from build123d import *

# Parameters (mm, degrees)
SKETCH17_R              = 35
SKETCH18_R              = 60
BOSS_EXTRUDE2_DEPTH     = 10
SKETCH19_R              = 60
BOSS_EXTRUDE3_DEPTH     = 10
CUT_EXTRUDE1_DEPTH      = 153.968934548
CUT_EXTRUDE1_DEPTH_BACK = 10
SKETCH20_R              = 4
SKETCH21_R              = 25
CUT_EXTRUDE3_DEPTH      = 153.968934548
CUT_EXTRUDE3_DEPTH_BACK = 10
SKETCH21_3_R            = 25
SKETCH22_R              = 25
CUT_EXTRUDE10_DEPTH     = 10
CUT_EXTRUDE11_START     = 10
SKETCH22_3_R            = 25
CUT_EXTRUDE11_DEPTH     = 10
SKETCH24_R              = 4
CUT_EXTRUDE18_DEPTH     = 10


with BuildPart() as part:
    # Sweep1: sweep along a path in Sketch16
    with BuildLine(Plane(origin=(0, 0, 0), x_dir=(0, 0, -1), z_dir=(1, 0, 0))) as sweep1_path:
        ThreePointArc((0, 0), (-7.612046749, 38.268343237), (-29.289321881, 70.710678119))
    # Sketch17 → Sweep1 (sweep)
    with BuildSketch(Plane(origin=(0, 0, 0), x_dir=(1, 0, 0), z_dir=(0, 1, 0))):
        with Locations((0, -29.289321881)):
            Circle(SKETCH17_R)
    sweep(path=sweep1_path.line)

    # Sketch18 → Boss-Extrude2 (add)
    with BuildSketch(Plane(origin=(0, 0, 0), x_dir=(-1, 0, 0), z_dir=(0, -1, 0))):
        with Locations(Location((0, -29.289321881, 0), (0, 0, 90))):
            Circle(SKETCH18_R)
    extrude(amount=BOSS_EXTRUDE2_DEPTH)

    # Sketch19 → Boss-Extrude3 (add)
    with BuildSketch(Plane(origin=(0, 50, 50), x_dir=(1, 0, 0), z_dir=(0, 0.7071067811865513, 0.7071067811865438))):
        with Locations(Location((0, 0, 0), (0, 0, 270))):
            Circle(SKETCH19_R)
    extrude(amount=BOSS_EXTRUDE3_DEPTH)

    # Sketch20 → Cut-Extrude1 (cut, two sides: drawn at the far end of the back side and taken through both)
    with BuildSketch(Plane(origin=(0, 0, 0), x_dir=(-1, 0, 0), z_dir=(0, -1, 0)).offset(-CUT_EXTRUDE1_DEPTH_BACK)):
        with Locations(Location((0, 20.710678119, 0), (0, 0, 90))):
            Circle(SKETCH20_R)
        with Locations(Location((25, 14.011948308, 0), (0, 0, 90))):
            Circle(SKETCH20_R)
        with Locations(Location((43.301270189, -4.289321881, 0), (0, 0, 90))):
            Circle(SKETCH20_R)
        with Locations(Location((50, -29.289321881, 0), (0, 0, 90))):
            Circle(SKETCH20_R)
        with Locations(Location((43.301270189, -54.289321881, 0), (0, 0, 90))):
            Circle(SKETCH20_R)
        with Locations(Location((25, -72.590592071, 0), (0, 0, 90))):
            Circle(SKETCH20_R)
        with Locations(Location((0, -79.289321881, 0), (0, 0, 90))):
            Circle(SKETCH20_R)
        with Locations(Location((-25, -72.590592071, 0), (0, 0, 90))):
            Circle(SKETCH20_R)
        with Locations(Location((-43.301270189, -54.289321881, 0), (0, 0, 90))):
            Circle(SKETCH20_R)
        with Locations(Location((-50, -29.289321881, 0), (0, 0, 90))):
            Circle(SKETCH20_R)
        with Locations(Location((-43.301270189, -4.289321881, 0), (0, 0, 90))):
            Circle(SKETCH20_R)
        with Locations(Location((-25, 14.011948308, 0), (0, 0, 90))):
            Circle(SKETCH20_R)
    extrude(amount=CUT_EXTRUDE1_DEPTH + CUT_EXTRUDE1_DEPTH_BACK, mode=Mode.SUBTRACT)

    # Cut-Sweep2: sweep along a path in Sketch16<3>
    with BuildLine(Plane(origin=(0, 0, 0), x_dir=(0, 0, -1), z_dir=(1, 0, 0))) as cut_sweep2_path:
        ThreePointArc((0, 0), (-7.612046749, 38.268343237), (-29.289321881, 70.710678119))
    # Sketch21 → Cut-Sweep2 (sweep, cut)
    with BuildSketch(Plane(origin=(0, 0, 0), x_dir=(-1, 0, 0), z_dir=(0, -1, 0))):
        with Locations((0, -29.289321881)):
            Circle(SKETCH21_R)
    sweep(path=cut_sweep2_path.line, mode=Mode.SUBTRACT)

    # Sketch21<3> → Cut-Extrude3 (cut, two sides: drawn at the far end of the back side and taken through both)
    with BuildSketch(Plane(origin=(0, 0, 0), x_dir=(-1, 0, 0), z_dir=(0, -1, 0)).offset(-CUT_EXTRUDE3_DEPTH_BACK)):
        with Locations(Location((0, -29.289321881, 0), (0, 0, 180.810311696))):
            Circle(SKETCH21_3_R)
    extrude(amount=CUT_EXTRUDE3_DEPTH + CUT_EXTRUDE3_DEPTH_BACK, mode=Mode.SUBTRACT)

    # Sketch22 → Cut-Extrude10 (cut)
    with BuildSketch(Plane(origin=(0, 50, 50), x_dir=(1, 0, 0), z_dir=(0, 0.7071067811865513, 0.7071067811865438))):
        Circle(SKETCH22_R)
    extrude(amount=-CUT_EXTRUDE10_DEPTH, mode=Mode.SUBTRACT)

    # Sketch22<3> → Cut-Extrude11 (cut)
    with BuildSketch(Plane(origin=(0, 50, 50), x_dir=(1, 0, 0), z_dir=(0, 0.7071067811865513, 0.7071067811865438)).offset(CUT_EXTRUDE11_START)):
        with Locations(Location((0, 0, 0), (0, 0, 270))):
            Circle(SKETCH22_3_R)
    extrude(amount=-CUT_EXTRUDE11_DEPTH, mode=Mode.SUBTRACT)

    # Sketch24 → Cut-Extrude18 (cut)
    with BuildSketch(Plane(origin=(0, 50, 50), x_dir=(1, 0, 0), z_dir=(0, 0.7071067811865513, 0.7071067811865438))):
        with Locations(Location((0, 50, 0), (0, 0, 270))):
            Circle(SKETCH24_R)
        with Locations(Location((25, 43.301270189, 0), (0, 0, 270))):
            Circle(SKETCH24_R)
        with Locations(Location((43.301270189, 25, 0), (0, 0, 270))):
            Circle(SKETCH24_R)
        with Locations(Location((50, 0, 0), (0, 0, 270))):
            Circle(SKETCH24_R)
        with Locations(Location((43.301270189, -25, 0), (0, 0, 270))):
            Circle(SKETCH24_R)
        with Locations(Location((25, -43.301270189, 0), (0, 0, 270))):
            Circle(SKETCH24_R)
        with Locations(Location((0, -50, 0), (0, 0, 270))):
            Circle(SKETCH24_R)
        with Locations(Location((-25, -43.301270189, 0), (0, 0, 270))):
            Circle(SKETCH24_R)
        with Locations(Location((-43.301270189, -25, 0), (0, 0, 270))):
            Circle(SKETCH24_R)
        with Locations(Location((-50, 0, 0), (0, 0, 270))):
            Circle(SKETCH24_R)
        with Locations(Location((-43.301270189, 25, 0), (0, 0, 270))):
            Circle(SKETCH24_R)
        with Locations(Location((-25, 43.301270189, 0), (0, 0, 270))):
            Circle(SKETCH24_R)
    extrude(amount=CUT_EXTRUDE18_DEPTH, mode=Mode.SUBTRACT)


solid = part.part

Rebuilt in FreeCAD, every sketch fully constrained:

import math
import FreeCAD as App
import Part
import Sketcher

V = App.Vector

doc = App.newDocument("Part")
body = doc.addObject("PartDesign::Body", "Body")

# Sketch on XZ plane
sketch1 = body.newObject("Sketcher::SketchObject", "Sketch")
sketch1.AttachmentSupport = (doc.getObject("XZ_Plane"), [""])
sketch1.MapMode = "FlatFace"
sketch1.addGeometry(Part.Circle(V(0, 29.289322, 0), V(0, 0, 1), 35), False)
sketch1.addConstraint([
    Sketcher.Constraint("PointOnObject", 0, 3, -2),
    Sketcher.Constraint("Diameter", 0, 70.0),
    Sketcher.Constraint("DistanceY", -1, 1, 0, 3, 29.289322),
])

# Sketch on YZ plane
sketch2 = body.newObject("Sketcher::SketchObject", "Sketch001")
sketch2.AttachmentSupport = (doc.getObject("YZ_Plane"), [""])
sketch2.MapMode = "FlatFace"
sketch2.addGeometry(Part.ArcOfCircle(Part.Circle(V(0, 100, 0), V(0, 0, 1), 100), math.radians(-90), math.radians(-45)), False)
sketch2.addConstraint([
    Sketcher.Constraint("Coincident", 0, 1, -1, 1),
    Sketcher.Constraint("PointOnObject", 0, 3, -2),
    Sketcher.Constraint("Radius", 0, 100.0),
    Sketcher.Constraint("DistanceX", -1, 1, 0, 2, 70.710678),
])
doc.recompute()

additivepipe = body.newObject("PartDesign::AdditivePipe", "AdditivePipe")
additivepipe.Profile = sketch1
additivepipe.Spine = (sketch2, ["Edge1"])

# Sketch on XZ plane
sketch3 = body.newObject("Sketcher::SketchObject", "Sketch002")
sketch3.AttachmentSupport = (doc.getObject("XZ_Plane"), [""])
sketch3.MapMode = "FlatFace"
sketch3.addGeometry(Part.Circle(V(0, 29.289322, 0), V(0, 0, 1), 60), False)
sketch3.addConstraint([
    Sketcher.Constraint("PointOnObject", 0, 3, -2),
    Sketcher.Constraint("Diameter", 0, 120.0),
    Sketcher.Constraint("DistanceY", -1, 1, 0, 3, 29.289322),
])
pad1 = body.newObject("PartDesign::Pad", "Pad")
pad1.Profile = sketch3
pad1.Length = 10

# Sketch on an angled plane
sketch4 = body.newObject("Sketcher::SketchObject", "Sketch003")
sketch4.Placement = App.Placement(V(0, 50, 50), App.Rotation(V(1, 0, 0), V(0, 0.707106781, -0.707106781), V(0, 0.707106781, 0.707106781), "ZXY"))
sketch4.addGeometry(Part.Circle(V(0, 0, 0), V(0, 0, 1), 60), False)
sketch4.addConstraint([
    Sketcher.Constraint("Coincident", 0, 3, -1, 1),
    Sketcher.Constraint("Diameter", 0, 120.0),
])
pad2 = body.newObject("PartDesign::Pad", "Pad001")
pad2.Profile = sketch4
pad2.Length = 10

# Sketch on XZ plane
sketch5 = body.newObject("Sketcher::SketchObject", "Sketch004")
sketch5.AttachmentSupport = (doc.getObject("XZ_Plane"), [""])
sketch5.MapMode = "FlatFace"
sketch5.addGeometry([
    Part.Circle(V(0, -20.710678, 0), V(0, 0, 1), 4),  # 0
    Part.Circle(V(-25, -14.011948, 0), V(0, 0, 1), 4),  # 1
    Part.Circle(V(-43.30127, 4.289322, 0), V(0, 0, 1), 4),  # 2
    Part.Circle(V(-50, 29.289322, 0), V(0, 0, 1), 4),  # 3
    Part.Circle(V(-43.30127, 54.289322, 0), V(0, 0, 1), 4),  # 4
    Part.Circle(V(-25, 72.590592, 0), V(0, 0, 1), 4),  # 5
    Part.Circle(V(0, 79.289322, 0), V(0, 0, 1), 4),  # 6
    Part.Circle(V(25, 72.590592, 0), V(0, 0, 1), 4),  # 7
    Part.Circle(V(43.30127, 54.289322, 0), V(0, 0, 1), 4),  # 8
    Part.Circle(V(50, 29.289322, 0), V(0, 0, 1), 4),  # 9
    Part.Circle(V(43.30127, 4.289322, 0), V(0, 0, 1), 4),  # 10
    Part.Circle(V(25, -14.011948, 0), V(0, 0, 1), 4),  # 11
], False)
sketch5.addConstraint([
    Sketcher.Constraint("Equal", 0, 1),
    Sketcher.Constraint("Equal", 1, 2),
    Sketcher.Constraint("Equal", 2, 3),
    Sketcher.Constraint("Equal", 3, 4),
    Sketcher.Constraint("Equal", 4, 5),
    Sketcher.Constraint("Equal", 5, 6),
    Sketcher.Constraint("Equal", 6, 7),
    Sketcher.Constraint("Equal", 7, 8),
    Sketcher.Constraint("Equal", 8, 9),
    Sketcher.Constraint("Equal", 9, 10),
    Sketcher.Constraint("Equal", 10, 11),
    Sketcher.Constraint("Symmetric", 5, 3, 7, 3, -2),
    Sketcher.Constraint("Symmetric", 4, 3, 8, 3, -2),
    Sketcher.Constraint("Symmetric", 3, 3, 9, 3, -2),
    Sketcher.Constraint("Symmetric", 2, 3, 10, 3, -2),
    Sketcher.Constraint("Symmetric", 1, 3, 11, 3, -2),
    Sketcher.Constraint("PointOnObject", 0, 3, -2),
    Sketcher.Constraint("PointOnObject", 6, 3, -2),
    Sketcher.Constraint("Vertical", 2, 3, 4, 3),
    Sketcher.Constraint("Vertical", 1, 3, 5, 3),
    Sketcher.Constraint("Diameter", 0, 8.0),
    Sketcher.Constraint("DistanceX", 1, 3, -1, 1, 25.0),
    Sketcher.Constraint("DistanceX", 3, 3, -1, 1, 50.0),
    Sketcher.Constraint("DistanceY", 0, 3, 2, 3, 25.0),
    Sketcher.Constraint("DistanceY", 2, 3, 3, 3, 25.0),
    Sketcher.Constraint("DistanceY", 3, 3, 4, 3, 25.0),
    Sketcher.Constraint("DistanceY", 4, 3, 6, 3, 25.0),
    Sketcher.Constraint("DistanceY", 0, 3, -1, 1, 20.710678),
    Sketcher.Constraint("DistanceY", 1, 3, -1, 1, 14.011948),
    Sketcher.Constraint("DistanceX", 2, 3, -1, 1, 43.30127),
    Sketcher.Constraint("DistanceY", 4, 3, 5, 3, 18.30127),
])
pocket1 = body.newObject("PartDesign::Pocket", "Pocket")
pocket1.Profile = sketch5
pocket1.Type = "TwoLengths"
pocket1.Length = 153.968935
pocket1.Length2 = 10
pocket1.Reversed = True

# Sketch on XZ plane
sketch6 = body.newObject("Sketcher::SketchObject", "Sketch005")
sketch6.AttachmentSupport = (doc.getObject("XZ_Plane"), [""])
sketch6.MapMode = "FlatFace"
sketch6.addGeometry(Part.Circle(V(0, 29.289322, 0), V(0, 0, 1), 25), False)
sketch6.addConstraint([
    Sketcher.Constraint("PointOnObject", 0, 3, -2),
    Sketcher.Constraint("Diameter", 0, 50.0),
    Sketcher.Constraint("DistanceY", -1, 1, 0, 3, 29.289322),
])

# Sketch on YZ plane
sketch7 = body.newObject("Sketcher::SketchObject", "Sketch006")
sketch7.AttachmentSupport = (doc.getObject("YZ_Plane"), [""])
sketch7.MapMode = "FlatFace"
sketch7.addGeometry(Part.ArcOfCircle(Part.Circle(V(0, 100, 0), V(0, 0, 1), 100), math.radians(-90), math.radians(-45)), False)
sketch7.addConstraint([
    Sketcher.Constraint("Coincident", 0, 1, -1, 1),
    Sketcher.Constraint("PointOnObject", 0, 3, -2),
    Sketcher.Constraint("Radius", 0, 100.0),
    Sketcher.Constraint("DistanceX", -1, 1, 0, 2, 70.710678),
])
doc.recompute()

subtractivepipe = body.newObject("PartDesign::SubtractivePipe", "SubtractivePipe")
subtractivepipe.Profile = sketch6
subtractivepipe.Spine = (sketch7, ["Edge1"])

# Sketch on XZ plane
sketch8 = body.newObject("Sketcher::SketchObject", "Sketch007")
sketch8.AttachmentSupport = (doc.getObject("XZ_Plane"), [""])
sketch8.MapMode = "FlatFace"
sketch8.addGeometry(Part.Circle(V(0, 29.289322, 0), V(0, 0, 1), 25), False)
sketch8.addConstraint([
    Sketcher.Constraint("PointOnObject", 0, 3, -2),
    Sketcher.Constraint("Diameter", 0, 50.0),
    Sketcher.Constraint("DistanceY", -1, 1, 0, 3, 29.289322),
])
pocket2 = body.newObject("PartDesign::Pocket", "Pocket001")
pocket2.Profile = sketch8
pocket2.Type = "TwoLengths"
pocket2.Length = 153.968935
pocket2.Length2 = 10
pocket2.Reversed = True

# Sketch on an angled plane
sketch9 = body.newObject("Sketcher::SketchObject", "Sketch008")
sketch9.Placement = App.Placement(V(0, 50, 50), App.Rotation(V(1, 0, 0), V(0, 0.707106781, -0.707106781), V(0, 0.707106781, 0.707106781), "ZXY"))
sketch9.addGeometry(Part.Circle(V(0, 0, 0), V(0, 0, 1), 25), False)
sketch9.addConstraint([
    Sketcher.Constraint("Coincident", 0, 3, -1, 1),
    Sketcher.Constraint("Diameter", 0, 50.0),
])
pocket3 = body.newObject("PartDesign::Pocket", "Pocket002")
pocket3.Profile = sketch9
pocket3.Length = 10

# Sketch on an angled plane
sketch10 = body.newObject("Sketcher::SketchObject", "Sketch009")
sketch10.Placement = App.Placement(V(0, 57.071068, 57.071068), App.Rotation(V(1, 0, 0), V(0, 0.707106781, -0.707106781), V(0, 0.707106781, 0.707106781), "ZXY"))
sketch10.addGeometry(Part.Circle(V(0, 0, 0), V(0, 0, 1), 25), False)
sketch10.addConstraint([
    Sketcher.Constraint("Coincident", 0, 3, -1, 1),
    Sketcher.Constraint("Diameter", 0, 50.0),
])
pocket4 = body.newObject("PartDesign::Pocket", "Pocket003")
pocket4.Profile = sketch10
pocket4.Length = 10

# Sketch on an angled plane
sketch11 = body.newObject("Sketcher::SketchObject", "Sketch010")
sketch11.Placement = App.Placement(V(0, 50, 50), App.Rotation(V(1, 0, 0), V(0, 0.707106781, -0.707106781), V(0, 0.707106781, 0.707106781), "ZXY"))
sketch11.addGeometry([
    Part.Circle(V(0, 50, 0), V(0, 0, 1), 4),  # 0
    Part.Circle(V(25, 43.30127, 0), V(0, 0, 1), 4),  # 1
    Part.Circle(V(43.30127, 25, 0), V(0, 0, 1), 4),  # 2
    Part.Circle(V(50, 0, 0), V(0, 0, 1), 4),  # 3
    Part.Circle(V(43.30127, -25, 0), V(0, 0, 1), 4),  # 4
    Part.Circle(V(25, -43.30127, 0), V(0, 0, 1), 4),  # 5
    Part.Circle(V(0, -50, 0), V(0, 0, 1), 4),  # 6
    Part.Circle(V(-25, -43.30127, 0), V(0, 0, 1), 4),  # 7
    Part.Circle(V(-43.30127, -25, 0), V(0, 0, 1), 4),  # 8
    Part.Circle(V(-50, 0, 0), V(0, 0, 1), 4),  # 9
    Part.Circle(V(-43.30127, 25, 0), V(0, 0, 1), 4),  # 10
    Part.Circle(V(-25, 43.30127, 0), V(0, 0, 1), 4),  # 11
], False)
sketch11.addConstraint([
    Sketcher.Constraint("Equal", 0, 1),
    Sketcher.Constraint("Equal", 1, 2),
    Sketcher.Constraint("Equal", 2, 3),
    Sketcher.Constraint("Equal", 3, 4),
    Sketcher.Constraint("Equal", 4, 5),
    Sketcher.Constraint("Equal", 5, 6),
    Sketcher.Constraint("Equal", 6, 7),
    Sketcher.Constraint("Equal", 7, 8),
    Sketcher.Constraint("Equal", 8, 9),
    Sketcher.Constraint("Equal", 9, 10),
    Sketcher.Constraint("Equal", 10, 11),
    Sketcher.Constraint("Symmetric", 0, 3, 6, 3, -1, 1),
    Sketcher.Constraint("Symmetric", 1, 3, 7, 3, -1, 1),
    Sketcher.Constraint("Symmetric", 2, 3, 8, 3, -1, 1),
    Sketcher.Constraint("Symmetric", 3, 3, 9, 3, -1, 1),
    Sketcher.Constraint("Symmetric", 4, 3, 10, 3, -1, 1),
    Sketcher.Constraint("Symmetric", 5, 3, 11, 3, -1, 1),
    Sketcher.Constraint("Symmetric", 5, 3, 7, 3, -2),
    Sketcher.Constraint("Symmetric", 4, 3, 8, 3, -2),
    Sketcher.Constraint("PointOnObject", 0, 3, -2),
    Sketcher.Constraint("PointOnObject", 3, 3, -1),
    Sketcher.Constraint("Diameter", 0, 8.0),
    Sketcher.Constraint("DistanceY", -1, 1, 0, 3, 50.0),
    Sketcher.Constraint("DistanceX", -1, 1, 1, 3, 25.0),
    Sketcher.Constraint("DistanceY", -1, 1, 2, 3, 25.0),
    Sketcher.Constraint("DistanceX", -1, 1, 3, 3, 50.0),
    Sketcher.Constraint("DistanceY", -1, 1, 1, 3, 43.30127),
    Sketcher.Constraint("DistanceX", -1, 1, 2, 3, 43.30127),
])
pocket5 = body.newObject("PartDesign::Pocket", "Pocket004")
pocket5.Profile = sketch11
pocket5.Length = 10
pocket5.Reversed = True

doc.recompute()
